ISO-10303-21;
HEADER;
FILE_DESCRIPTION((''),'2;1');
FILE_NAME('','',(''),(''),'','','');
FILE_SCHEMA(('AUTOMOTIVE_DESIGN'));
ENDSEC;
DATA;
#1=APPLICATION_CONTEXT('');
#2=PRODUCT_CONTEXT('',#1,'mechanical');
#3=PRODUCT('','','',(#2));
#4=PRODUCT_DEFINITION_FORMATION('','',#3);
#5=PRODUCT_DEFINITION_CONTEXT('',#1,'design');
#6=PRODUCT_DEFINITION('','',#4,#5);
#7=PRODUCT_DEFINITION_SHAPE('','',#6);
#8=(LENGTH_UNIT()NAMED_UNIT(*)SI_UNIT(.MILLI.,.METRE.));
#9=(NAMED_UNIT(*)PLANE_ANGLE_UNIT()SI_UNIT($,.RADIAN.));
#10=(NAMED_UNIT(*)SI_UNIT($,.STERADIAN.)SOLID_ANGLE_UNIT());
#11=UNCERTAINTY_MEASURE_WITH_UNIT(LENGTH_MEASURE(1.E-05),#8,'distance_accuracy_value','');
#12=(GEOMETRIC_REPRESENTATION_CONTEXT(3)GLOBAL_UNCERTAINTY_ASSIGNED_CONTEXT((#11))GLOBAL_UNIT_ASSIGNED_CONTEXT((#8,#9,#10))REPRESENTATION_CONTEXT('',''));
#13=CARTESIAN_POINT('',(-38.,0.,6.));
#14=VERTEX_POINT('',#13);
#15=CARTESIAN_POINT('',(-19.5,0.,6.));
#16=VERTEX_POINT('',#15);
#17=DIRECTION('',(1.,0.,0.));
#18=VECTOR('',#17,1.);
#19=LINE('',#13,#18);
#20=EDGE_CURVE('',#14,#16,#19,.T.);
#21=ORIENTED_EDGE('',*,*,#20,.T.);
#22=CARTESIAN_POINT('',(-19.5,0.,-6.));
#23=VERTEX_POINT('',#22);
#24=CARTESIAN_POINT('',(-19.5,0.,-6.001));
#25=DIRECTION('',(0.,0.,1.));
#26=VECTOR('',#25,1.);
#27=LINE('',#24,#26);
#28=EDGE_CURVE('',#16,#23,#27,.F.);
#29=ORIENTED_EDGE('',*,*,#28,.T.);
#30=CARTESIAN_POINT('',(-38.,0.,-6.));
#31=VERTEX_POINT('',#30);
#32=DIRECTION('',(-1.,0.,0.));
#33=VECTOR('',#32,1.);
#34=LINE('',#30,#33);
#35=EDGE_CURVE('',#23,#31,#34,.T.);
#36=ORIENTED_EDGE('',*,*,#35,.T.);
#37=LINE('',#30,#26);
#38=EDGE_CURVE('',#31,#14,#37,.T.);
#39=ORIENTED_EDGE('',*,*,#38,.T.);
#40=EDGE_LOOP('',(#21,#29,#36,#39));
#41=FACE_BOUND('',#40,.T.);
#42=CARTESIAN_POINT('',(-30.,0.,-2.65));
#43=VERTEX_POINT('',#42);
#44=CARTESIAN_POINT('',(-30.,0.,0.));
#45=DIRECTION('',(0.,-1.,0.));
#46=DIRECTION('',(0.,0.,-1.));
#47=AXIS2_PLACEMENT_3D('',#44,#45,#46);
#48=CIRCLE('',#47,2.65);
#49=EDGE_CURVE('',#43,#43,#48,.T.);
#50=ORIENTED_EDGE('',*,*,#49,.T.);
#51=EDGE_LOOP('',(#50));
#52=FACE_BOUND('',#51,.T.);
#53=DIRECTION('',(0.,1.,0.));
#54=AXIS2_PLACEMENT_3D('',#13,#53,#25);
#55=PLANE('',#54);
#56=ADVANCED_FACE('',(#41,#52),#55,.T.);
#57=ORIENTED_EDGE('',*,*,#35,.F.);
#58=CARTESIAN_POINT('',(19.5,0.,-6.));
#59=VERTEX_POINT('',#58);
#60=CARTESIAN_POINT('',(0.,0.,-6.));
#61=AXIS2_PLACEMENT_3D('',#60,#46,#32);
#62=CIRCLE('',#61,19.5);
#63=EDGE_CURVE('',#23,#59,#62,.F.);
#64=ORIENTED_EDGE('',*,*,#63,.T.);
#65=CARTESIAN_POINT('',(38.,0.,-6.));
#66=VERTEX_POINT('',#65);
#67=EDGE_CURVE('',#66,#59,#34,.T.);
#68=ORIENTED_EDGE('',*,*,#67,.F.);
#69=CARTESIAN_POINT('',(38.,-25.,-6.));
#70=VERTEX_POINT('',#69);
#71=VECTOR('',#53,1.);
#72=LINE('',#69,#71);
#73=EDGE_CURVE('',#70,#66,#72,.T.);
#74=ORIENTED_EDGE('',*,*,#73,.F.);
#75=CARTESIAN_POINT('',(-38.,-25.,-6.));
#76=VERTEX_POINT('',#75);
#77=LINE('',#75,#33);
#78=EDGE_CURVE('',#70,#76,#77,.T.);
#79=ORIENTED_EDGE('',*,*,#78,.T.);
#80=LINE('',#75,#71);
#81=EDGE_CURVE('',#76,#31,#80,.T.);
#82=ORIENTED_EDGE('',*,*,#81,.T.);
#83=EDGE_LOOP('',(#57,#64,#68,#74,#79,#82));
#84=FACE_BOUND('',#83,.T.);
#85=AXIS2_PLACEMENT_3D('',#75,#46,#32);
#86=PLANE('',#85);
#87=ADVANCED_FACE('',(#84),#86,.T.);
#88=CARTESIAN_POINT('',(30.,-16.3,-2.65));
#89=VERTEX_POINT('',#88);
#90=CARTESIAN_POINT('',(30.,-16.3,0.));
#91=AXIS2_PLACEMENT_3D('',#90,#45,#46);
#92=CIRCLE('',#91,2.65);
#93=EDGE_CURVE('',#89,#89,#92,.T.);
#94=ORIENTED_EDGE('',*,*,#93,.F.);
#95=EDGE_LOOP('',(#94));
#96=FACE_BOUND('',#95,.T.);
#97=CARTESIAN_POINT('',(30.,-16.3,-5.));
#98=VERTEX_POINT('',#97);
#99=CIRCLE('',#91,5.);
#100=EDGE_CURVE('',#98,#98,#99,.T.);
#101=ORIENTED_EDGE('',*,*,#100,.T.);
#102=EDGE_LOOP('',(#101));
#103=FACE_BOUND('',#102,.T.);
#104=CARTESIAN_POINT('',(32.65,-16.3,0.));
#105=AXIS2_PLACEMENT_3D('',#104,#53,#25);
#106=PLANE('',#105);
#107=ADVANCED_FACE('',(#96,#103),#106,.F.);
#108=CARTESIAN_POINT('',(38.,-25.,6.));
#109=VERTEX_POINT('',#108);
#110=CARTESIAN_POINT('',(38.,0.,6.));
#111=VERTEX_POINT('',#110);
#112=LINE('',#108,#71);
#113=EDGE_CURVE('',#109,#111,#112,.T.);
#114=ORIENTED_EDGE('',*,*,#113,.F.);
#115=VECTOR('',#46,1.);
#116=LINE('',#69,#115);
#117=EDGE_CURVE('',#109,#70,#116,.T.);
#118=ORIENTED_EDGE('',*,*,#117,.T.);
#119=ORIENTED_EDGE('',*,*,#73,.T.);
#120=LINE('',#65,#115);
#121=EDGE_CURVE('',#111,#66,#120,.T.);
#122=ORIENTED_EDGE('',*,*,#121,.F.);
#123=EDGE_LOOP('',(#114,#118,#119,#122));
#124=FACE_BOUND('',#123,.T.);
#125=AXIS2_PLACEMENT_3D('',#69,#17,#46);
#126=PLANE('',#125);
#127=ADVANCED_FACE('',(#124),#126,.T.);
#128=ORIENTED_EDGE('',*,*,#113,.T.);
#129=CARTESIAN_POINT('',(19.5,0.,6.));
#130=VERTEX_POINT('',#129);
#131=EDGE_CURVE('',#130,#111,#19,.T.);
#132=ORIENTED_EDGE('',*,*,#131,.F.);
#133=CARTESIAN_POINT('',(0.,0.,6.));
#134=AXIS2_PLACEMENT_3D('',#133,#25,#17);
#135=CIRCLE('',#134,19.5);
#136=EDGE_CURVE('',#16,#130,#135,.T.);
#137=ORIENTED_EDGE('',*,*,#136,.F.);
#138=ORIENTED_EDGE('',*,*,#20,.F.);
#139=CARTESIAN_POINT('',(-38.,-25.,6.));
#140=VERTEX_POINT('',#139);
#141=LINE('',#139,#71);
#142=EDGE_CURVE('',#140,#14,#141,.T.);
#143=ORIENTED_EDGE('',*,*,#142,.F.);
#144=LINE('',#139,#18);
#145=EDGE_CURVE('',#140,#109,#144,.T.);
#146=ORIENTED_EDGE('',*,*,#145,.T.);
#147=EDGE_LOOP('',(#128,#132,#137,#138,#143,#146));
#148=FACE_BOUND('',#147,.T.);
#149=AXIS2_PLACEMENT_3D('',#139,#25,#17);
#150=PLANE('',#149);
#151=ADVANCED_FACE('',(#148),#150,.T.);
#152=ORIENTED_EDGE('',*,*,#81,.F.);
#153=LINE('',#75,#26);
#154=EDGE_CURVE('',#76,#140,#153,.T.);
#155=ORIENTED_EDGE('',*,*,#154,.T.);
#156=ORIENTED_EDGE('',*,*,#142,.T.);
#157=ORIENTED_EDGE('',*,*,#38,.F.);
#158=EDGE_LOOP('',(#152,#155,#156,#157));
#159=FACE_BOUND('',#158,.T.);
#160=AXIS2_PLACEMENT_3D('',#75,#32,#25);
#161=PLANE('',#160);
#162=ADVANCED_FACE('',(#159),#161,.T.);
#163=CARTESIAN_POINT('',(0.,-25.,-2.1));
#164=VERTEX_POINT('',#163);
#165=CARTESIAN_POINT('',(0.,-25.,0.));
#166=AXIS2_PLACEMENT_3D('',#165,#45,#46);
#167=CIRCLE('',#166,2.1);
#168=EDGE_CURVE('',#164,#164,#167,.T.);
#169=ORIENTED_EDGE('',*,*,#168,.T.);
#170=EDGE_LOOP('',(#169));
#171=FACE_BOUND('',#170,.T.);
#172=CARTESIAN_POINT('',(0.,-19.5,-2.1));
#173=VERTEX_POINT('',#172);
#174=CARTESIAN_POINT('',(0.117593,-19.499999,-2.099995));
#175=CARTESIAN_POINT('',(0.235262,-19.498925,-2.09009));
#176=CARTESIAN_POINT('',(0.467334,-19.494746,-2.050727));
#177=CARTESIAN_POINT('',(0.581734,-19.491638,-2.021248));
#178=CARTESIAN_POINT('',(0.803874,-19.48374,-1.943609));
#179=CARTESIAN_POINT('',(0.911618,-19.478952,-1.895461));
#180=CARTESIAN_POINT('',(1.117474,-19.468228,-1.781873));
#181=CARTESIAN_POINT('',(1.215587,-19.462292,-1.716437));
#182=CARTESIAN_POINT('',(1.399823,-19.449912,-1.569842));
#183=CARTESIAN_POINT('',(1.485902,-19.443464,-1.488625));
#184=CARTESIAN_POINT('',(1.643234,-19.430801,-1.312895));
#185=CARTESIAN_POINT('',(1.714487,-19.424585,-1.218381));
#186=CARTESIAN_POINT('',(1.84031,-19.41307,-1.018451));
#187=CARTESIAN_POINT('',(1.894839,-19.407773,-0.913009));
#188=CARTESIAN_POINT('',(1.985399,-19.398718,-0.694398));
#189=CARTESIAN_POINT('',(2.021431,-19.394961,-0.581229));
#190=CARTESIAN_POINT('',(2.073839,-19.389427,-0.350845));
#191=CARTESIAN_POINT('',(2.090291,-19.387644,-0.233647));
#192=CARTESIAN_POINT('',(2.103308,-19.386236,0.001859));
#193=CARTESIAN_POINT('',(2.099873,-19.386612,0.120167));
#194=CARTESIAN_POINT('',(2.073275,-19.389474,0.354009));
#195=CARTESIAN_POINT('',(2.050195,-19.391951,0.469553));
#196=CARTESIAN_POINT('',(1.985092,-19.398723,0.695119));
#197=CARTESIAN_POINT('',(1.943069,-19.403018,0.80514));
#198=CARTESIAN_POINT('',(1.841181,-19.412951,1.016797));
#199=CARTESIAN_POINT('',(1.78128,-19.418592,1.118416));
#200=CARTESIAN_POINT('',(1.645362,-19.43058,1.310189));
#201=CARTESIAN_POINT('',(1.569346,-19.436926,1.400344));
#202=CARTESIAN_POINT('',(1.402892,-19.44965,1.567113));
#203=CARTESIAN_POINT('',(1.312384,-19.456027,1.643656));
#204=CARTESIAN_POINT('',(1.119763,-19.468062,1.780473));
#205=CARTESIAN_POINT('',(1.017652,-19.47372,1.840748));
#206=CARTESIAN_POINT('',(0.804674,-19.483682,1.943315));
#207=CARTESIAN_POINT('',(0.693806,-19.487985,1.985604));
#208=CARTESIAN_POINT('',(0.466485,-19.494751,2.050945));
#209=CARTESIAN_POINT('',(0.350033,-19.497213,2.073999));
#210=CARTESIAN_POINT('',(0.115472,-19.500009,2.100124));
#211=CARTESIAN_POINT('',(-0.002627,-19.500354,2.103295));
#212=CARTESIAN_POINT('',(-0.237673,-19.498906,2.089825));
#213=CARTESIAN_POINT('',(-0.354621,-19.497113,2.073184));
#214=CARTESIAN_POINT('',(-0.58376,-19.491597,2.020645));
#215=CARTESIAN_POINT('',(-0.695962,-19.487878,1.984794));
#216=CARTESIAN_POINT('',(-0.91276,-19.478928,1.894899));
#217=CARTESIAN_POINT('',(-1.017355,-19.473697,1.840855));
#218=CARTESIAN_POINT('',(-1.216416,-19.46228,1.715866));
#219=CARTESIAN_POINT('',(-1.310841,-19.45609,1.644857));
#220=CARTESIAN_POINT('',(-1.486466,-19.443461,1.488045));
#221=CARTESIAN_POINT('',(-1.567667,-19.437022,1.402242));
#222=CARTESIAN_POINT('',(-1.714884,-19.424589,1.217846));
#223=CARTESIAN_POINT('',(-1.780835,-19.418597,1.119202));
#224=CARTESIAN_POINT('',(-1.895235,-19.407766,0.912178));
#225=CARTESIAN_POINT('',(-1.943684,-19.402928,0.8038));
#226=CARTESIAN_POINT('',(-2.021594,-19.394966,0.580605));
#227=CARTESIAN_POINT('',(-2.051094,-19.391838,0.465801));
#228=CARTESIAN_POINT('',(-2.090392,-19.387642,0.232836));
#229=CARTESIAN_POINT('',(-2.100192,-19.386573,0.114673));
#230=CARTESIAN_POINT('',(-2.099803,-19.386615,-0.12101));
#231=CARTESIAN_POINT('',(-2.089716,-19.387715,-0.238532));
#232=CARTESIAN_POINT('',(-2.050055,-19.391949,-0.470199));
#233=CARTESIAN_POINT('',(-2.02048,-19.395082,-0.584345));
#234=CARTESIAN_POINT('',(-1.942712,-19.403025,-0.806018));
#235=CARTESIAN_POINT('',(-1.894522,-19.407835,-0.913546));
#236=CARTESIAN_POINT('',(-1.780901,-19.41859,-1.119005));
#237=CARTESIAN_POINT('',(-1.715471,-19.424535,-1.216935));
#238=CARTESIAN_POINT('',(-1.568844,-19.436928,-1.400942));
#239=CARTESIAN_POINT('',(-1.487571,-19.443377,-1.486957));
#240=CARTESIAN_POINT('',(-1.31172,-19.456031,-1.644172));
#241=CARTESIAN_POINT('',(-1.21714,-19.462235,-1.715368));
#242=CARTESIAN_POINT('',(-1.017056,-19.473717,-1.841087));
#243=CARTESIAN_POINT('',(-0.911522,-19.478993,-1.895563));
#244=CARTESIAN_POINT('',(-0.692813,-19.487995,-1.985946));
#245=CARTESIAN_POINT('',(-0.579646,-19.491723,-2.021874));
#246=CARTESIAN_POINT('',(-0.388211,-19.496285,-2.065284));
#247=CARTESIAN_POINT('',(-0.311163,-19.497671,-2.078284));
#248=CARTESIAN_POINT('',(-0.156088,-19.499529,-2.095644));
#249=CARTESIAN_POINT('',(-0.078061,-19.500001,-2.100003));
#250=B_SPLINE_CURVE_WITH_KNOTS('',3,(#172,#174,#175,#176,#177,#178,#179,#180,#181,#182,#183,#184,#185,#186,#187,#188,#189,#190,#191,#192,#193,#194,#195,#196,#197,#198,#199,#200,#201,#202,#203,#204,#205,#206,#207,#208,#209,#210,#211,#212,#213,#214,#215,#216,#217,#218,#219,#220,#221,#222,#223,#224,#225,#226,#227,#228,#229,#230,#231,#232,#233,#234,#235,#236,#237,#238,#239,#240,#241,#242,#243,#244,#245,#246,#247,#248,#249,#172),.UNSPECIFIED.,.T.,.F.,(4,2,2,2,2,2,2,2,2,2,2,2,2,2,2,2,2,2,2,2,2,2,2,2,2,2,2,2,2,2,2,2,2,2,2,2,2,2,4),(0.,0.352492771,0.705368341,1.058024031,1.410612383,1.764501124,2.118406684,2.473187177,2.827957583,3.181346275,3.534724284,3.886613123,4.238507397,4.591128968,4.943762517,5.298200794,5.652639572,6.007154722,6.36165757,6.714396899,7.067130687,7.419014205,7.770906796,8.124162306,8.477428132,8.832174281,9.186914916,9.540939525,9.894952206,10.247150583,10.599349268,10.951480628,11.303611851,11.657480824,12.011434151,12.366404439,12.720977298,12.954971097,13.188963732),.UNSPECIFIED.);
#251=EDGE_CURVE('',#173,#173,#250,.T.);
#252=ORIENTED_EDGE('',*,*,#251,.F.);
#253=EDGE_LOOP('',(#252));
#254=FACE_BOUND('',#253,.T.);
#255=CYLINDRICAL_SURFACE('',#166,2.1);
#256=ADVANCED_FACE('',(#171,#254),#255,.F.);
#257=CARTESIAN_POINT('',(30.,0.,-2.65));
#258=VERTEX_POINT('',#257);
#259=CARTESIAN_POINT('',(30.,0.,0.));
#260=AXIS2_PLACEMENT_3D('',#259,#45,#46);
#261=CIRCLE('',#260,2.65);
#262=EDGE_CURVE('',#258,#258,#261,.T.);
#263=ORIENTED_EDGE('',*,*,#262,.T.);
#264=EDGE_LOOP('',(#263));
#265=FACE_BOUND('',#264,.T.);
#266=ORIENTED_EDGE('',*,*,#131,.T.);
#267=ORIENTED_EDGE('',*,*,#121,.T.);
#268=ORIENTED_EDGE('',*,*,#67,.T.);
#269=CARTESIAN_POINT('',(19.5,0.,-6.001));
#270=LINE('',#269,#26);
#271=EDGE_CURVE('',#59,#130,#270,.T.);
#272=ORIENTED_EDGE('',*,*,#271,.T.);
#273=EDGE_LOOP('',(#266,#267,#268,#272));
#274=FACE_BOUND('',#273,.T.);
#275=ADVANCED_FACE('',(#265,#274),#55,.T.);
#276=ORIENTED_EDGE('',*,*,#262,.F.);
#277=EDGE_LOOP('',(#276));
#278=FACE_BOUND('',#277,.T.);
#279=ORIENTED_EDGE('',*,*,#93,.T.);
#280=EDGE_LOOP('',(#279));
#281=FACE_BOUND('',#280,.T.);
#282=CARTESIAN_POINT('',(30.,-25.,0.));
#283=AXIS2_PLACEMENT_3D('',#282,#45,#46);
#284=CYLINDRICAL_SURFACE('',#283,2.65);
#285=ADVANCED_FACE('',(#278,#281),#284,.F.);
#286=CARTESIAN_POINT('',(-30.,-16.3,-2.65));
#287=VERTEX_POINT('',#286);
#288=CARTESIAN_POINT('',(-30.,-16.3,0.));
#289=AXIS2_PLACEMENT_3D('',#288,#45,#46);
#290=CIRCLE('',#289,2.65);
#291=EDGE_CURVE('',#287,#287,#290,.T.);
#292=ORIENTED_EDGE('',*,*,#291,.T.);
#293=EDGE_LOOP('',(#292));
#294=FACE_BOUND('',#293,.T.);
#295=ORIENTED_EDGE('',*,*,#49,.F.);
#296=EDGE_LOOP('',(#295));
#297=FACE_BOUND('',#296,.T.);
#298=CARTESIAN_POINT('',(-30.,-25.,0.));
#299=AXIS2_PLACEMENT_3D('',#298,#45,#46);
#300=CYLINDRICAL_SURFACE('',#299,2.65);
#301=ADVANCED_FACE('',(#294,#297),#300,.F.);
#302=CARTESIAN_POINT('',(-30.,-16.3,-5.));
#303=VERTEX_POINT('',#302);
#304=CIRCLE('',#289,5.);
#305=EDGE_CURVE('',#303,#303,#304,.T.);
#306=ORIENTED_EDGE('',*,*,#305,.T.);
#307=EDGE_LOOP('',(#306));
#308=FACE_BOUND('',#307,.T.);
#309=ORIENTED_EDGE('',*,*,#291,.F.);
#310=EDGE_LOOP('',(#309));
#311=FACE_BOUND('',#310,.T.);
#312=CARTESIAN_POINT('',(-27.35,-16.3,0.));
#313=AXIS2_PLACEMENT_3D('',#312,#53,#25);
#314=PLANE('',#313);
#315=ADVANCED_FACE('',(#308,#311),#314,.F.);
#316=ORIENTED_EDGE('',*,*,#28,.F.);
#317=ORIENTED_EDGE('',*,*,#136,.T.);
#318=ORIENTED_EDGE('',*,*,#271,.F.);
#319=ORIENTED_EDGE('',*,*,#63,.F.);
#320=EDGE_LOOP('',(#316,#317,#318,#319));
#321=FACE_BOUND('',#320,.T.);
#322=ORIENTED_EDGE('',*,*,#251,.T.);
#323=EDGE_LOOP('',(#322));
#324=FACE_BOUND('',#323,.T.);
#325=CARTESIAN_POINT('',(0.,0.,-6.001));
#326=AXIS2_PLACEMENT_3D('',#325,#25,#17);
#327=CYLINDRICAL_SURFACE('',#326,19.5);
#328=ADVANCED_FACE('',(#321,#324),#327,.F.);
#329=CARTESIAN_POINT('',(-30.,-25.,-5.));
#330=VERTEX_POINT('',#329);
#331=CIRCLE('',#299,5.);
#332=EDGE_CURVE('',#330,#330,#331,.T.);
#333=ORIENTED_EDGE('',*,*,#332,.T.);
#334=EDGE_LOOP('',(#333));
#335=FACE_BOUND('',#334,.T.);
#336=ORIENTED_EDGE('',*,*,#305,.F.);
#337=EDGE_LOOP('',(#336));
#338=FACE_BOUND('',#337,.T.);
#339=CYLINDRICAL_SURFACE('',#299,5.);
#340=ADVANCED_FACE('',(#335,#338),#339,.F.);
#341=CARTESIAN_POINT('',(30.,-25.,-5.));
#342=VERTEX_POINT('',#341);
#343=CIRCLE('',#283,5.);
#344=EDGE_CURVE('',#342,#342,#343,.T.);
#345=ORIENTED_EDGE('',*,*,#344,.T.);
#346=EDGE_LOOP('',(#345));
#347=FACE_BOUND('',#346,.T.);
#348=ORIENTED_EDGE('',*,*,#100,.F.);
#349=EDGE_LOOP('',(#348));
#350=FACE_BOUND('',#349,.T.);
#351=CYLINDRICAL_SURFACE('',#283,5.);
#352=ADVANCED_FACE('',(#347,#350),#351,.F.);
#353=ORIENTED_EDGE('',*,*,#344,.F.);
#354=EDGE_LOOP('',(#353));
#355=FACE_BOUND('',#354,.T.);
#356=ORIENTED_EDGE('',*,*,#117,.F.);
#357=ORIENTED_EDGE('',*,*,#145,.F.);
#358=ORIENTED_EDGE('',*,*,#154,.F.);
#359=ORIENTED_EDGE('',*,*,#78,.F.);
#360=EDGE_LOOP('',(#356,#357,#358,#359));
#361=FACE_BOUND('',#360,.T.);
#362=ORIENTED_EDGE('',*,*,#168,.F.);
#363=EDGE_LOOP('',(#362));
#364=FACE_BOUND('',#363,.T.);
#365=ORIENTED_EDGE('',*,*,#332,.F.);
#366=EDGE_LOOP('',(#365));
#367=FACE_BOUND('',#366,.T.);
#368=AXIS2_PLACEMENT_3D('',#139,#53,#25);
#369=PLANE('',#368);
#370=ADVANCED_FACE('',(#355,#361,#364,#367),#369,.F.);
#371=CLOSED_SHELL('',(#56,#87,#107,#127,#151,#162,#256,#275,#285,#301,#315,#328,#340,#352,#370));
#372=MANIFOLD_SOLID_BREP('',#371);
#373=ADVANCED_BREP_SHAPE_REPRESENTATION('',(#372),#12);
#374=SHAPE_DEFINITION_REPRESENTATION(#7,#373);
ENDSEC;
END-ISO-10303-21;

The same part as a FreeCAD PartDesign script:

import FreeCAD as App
import Part
import Sketcher
Q = App.Units.Quantity


def add_polygon(sketch, points):
    """Adds a closed chain of lines whose ends are joined by coincident constraints."""
    first, n = sketch.GeometryCount, len(points)
    for a, b in zip(points, points[1:] + points[:1]):
        sketch.addGeometry(Part.LineSegment(App.Vector(*a, 0), App.Vector(*b, 0)), False)
    for i in range(n):
        sketch.addConstraint(Sketcher.Constraint("Coincident", first + i, 2, first + (i + 1) % n, 1))

doc = App.newDocument("Part")
body = doc.addObject("PartDesign::Body", "Body")

# Sketch on XZ plane
sketch1 = body.newObject("Sketcher::SketchObject", "Sketch")
sketch1.AttachmentSupport = (doc.getObject("XZ_Plane"), [""])
sketch1.MapMode = "FlatFace"
add_polygon(sketch1, [(-38, -6), (-38, 6), (38, 6), (38, -6)])  # lines 0-3
sketch1.addConstraint([
    Sketcher.Constraint("Vertical", 0),
    Sketcher.Constraint("Horizontal", 1),
    Sketcher.Constraint("Vertical", 2),
    Sketcher.Constraint("Horizontal", 3),
    Sketcher.Constraint("Symmetric", 0, 2, 2, 2, -1, 1),
    Sketcher.Constraint("DistanceX", 1, 1, 1, 2, Q("76 mm")),
    Sketcher.Constraint("DistanceY", 0, 1, 0, 2, Q("12 mm")),
])
pad1 = body.newObject("PartDesign::Pad", "Pad")
pad1.Profile = sketch1
pad1.Length = 25

# Sketch on XY plane
sketch2 = body.newObject("Sketcher::SketchObject", "Sketch001")
sketch2.AttachmentSupport = (doc.getObject("XY_Plane"), [""])
sketch2.MapMode = "FlatFace"
sketch2.AttachmentOffset = App.Placement(App.Vector(0, 0, 6), App.Rotation())
sketch2.addGeometry(Part.Circle(App.Vector(0, 0, 0), App.Vector(0, 0, 1), 20), False)
sketch2.addConstraint([
    Sketcher.Constraint("Coincident", 0, 3, -1, 1),
    Sketcher.Constraint("Diameter", 0, Q("39 mm")),
])
pocket1 = body.newObject("PartDesign::Pocket", "Pocket")
pocket1.Profile = sketch2
pocket1.Type = "UpToFirst"

# Sketch on XZ plane
sketch3 = body.newObject("Sketcher::SketchObject", "Sketch002")
sketch3.AttachmentSupport = (doc.getObject("XZ_Plane"), [""])
sketch3.MapMode = "FlatFace"
sketch3.AttachmentOffset = App.Placement(App.Vector(0, 0, 25), App.Rotation())
sketch3.addGeometry(Part.Circle(App.Vector(0, 0, 0), App.Vector(0, 0, 1), 2.1), False)
sketch3.addConstraint([
    Sketcher.Constraint("Coincident", 0, 3, -1, 1),
    Sketcher.Constraint("Diameter", 0, Q("4.2 mm")),
])
doc.recompute()
hole = body.newObject("PartDesign::Hole", "Hole")
hole.Profile = sketch3
hole.ThreadType = "None"
hole.Diameter = 4.2
hole.DepthType = "ThroughAll"

# Sketch on XZ plane
sketch4 = body.newObject("Sketcher::SketchObject", "Sketch003")
sketch4.AttachmentSupport = (doc.getObject("XZ_Plane"), [""])
sketch4.MapMode = "FlatFace"
sketch4.AttachmentOffset = App.Placement(App.Vector(0, 0, 25), App.Rotation())
sketch4.addGeometry([
    Part.Circle(App.Vector(-30, 0, 0), App.Vector(0, 0, 1), 2.6),
    Part.Circle(App.Vector(30, 0, 0), App.Vector(0, 0, 1), 2.6),
], False)
sketch4.addConstraint([
    Sketcher.Constraint("Equal", 0, 1),
    Sketcher.Constraint("Symmetric", 0, 3, 1, 3, -1, 1),
    Sketcher.Constraint("PointOnObject", 0, 3, -1),
    Sketcher.Constraint("Diameter", 0, Q("5.3 mm")),
    Sketcher.Constraint("DistanceX", 0, 3, -1, 1, Q("30 mm")),
])
doc.recompute()
hole2 = body.newObject("PartDesign::Hole", "Hole001")
hole2.Profile = sketch4
hole2.ThreadType = "None"
hole2.Diameter = 5.3
hole2.DepthType = "ThroughAll"
hole2.HoleCutType = "Counterbore"
hole2.HoleCutDiameter = 10
hole2.HoleCutDepth = 8.7

doc.recompute()
